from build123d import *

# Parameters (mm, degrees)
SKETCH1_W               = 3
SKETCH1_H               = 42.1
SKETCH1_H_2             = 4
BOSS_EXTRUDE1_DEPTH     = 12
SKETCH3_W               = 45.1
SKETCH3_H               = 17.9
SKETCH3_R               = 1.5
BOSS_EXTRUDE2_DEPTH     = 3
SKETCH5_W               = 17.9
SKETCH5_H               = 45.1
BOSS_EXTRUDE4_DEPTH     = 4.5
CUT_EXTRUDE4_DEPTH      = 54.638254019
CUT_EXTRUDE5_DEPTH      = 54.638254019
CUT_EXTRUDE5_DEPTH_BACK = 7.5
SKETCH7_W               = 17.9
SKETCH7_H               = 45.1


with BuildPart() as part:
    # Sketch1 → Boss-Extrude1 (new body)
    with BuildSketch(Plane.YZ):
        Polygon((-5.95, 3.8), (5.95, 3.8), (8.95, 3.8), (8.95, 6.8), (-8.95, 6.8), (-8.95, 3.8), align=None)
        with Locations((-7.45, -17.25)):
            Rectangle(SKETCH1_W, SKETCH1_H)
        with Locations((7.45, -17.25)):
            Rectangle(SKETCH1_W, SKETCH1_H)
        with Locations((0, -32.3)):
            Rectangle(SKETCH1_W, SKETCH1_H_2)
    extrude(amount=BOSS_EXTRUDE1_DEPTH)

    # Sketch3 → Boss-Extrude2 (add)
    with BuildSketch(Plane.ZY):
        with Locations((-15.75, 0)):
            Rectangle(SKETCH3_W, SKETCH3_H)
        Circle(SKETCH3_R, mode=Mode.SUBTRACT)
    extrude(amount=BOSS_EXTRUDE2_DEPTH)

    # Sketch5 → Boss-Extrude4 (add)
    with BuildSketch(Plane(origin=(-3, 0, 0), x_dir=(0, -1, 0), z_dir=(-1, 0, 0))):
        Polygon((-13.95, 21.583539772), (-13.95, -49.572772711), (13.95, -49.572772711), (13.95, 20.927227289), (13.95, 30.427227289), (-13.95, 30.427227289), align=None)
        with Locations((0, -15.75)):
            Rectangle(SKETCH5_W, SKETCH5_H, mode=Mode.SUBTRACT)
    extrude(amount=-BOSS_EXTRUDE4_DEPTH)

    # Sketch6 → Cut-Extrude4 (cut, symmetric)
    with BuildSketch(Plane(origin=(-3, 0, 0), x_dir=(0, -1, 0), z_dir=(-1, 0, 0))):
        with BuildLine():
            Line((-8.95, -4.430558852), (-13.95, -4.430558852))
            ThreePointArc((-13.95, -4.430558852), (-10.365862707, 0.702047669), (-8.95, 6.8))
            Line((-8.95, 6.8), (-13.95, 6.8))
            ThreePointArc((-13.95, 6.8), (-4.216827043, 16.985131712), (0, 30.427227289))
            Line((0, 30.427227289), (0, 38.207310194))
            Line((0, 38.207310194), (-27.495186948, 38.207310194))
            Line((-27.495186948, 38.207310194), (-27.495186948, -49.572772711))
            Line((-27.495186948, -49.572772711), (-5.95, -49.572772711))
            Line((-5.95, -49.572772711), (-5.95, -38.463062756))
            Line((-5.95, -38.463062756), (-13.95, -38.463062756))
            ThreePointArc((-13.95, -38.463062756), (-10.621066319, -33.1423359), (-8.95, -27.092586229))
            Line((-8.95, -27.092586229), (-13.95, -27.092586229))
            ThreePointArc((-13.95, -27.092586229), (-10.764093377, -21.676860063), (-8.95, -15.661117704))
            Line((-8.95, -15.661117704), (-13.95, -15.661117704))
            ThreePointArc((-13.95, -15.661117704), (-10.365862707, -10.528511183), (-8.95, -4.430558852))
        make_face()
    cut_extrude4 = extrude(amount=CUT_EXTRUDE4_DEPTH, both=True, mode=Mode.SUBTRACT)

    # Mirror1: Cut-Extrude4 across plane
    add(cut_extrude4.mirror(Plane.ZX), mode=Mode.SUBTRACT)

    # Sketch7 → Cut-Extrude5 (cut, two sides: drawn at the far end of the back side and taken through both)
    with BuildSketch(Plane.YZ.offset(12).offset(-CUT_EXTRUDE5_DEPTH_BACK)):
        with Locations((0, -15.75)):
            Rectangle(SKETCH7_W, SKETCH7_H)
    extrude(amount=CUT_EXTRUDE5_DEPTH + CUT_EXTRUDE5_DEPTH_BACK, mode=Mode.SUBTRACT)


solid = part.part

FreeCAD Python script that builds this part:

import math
import FreeCAD as App
import Part
import Sketcher

V = App.Vector

doc = App.newDocument("Part")
params = doc.addObject("Spreadsheet::Sheet", "Params")
for row, (alias, value) in enumerate([
    ("sketch1_width", "3 mm"),
    ("sketch1_height", "4 mm"),
    ("sketch1_width2", "17.9 mm"),
    ("sketch1_height2", "45.1 mm"),
    ("sketch1_height3", "42.1 mm"),
    ("pad1_length", "12 mm"),
    ("sketch2_diameter", "3 mm"),
    ("sketch2_width", "17.9 mm"),
    ("sketch2_height", "45.1 mm"),
    ("pad2_length", "3 mm"),
    ("sketch3_height", "80 mm"),
    ("sketch3_width", "27.9 mm"),
    ("sketch3_width2", "17.9 mm"),
    ("sketch3_height2", "45.1 mm"),
    ("pad3_length", "4.5 mm"),
    ("sketch4_width", "5 mm"),
    ("sketch4_width2", "8 mm"),
    ("pocket1_length", "109.276508 mm"),
    ("sketch5_width", "17.9 mm"),
    ("sketch5_height", "45.1 mm"),
    ("pocket2_length", "54.638254 mm"),
    ("pocket2_length2", "7.5 mm"),
], start=1):
    params.set(f"A{row}", alias)
    params.set(f"B{row}", "=" + value)
    params.setAlias(f"B{row}", alias)

body = doc.addObject("PartDesign::Body", "Body")
body.AllowCompound = True

# Sketch on YZ plane
sketch1 = body.newObject("Sketcher::SketchObject", "Sketch")
sketch1.AttachmentSupport = (doc.getObject("YZ_Plane"), [""])
sketch1.MapMode = "FlatFace"
sketch1.addGeometry(Part.LineSegment(V(8.9, 6.8, 0), V(-8.9, 6.8, 0)), False)
sketch1.addGeometry(Part.LineSegment(V(-8.9, 6.8, 0), V(-8.9, -38.3, 0)), False)
sketch1.addGeometry(Part.LineSegment(V(-8.9, -38.3, 0), V(-6, -38.3, 0)), False)
sketch1.addGeometry(Part.LineSegment(V(-6, -38.3, 0), V(-6, 3.8, 0)), False)
sketch1.addGeometry(Part.LineSegment(V(-6, 3.8, 0), V(6, 3.8, 0)), False)
sketch1.addGeometry(Part.LineSegment(V(6, 3.8, 0), V(6, -38.3, 0)), False)
sketch1.addGeometry(Part.LineSegment(V(6, -38.3, 0), V(8.9, -38.3, 0)), False)
sketch1.addGeometry(Part.LineSegment(V(8.9, -38.3, 0), V(8.9, 6.8, 0)), False)
sketch1.addGeometry(Part.LineSegment(V(-1.5, -30.3, 0), V(-1.5, -34.3, 0)), False)
sketch1.addGeometry(Part.LineSegment(V(-1.5, -34.3, 0), V(1.5, -34.3, 0)), False)
sketch1.addGeometry(Part.LineSegment(V(1.5, -34.3, 0), V(1.5, -30.3, 0)), False)
sketch1.addGeometry(Part.LineSegment(V(1.5, -30.3, 0), V(-1.5, -30.3, 0)), False)
sketch1.addConstraint(Sketcher.Constraint("Coincident", 0, 2, 1, 1))
sketch1.addConstraint(Sketcher.Constraint("Coincident", 1, 2, 2, 1))
sketch1.addConstraint(Sketcher.Constraint("Coincident", 2, 2, 3, 1))
sketch1.addConstraint(Sketcher.Constraint("Coincident", 3, 2, 4, 1))
sketch1.addConstraint(Sketcher.Constraint("Coincident", 4, 2, 5, 1))
sketch1.addConstraint(Sketcher.Constraint("Coincident", 5, 2, 6, 1))
sketch1.addConstraint(Sketcher.Constraint("Coincident", 6, 2, 7, 1))
sketch1.addConstraint(Sketcher.Constraint("Coincident", 7, 2, 0, 1))
sketch1.addConstraint(Sketcher.Constraint("Coincident", 8, 2, 9, 1))
sketch1.addConstraint(Sketcher.Constraint("Coincident", 9, 2, 10, 1))
sketch1.addConstraint(Sketcher.Constraint("Coincident", 10, 2, 11, 1))
sketch1.addConstraint(Sketcher.Constraint("Coincident", 11, 2, 8, 1))
sketch1.addConstraint(Sketcher.Constraint("Horizontal", 0))
sketch1.addConstraint(Sketcher.Constraint("Vertical", 1))
sketch1.addConstraint(Sketcher.Constraint("Horizontal", 2))
sketch1.addConstraint(Sketcher.Constraint("Vertical", 3))
sketch1.addConstraint(Sketcher.Constraint("Horizontal", 4))
sketch1.addConstraint(Sketcher.Constraint("Vertical", 5))
sketch1.addConstraint(Sketcher.Constraint("Horizontal", 6))
sketch1.addConstraint(Sketcher.Constraint("Vertical", 7))
sketch1.addConstraint(Sketcher.Constraint("Vertical", 8))
sketch1.addConstraint(Sketcher.Constraint("Horizontal", 9))
sketch1.addConstraint(Sketcher.Constraint("Vertical", 10))
sketch1.addConstraint(Sketcher.Constraint("Horizontal", 11))
sketch1.addConstraint(Sketcher.Constraint("Symmetric", 2, 2, 5, 2, -2))
sketch1.addConstraint(Sketcher.Constraint("Equal", 2, 6))
sketch1.addConstraint(Sketcher.Constraint("Equal", 6, 9))
sketch1.addConstraint(Sketcher.Constraint("DistanceX", 2, 1, 2, 2, 3.0))
sketch1.addConstraint(Sketcher.Constraint("DistanceY", 8, 2, 8, 1, 4.0))
sketch1.addConstraint(Sketcher.Constraint("DistanceX", 0, 2, 0, 1, 17.9))
sketch1.addConstraint(Sketcher.Constraint("DistanceY", 1, 2, 1, 1, 45.1))
sketch1.addConstraint(Sketcher.Constraint("DistanceY", 3, 1, 3, 2, 42.1))
sketch1.addConstraint(Sketcher.Constraint("DistanceY", 2, 2, 8, 2, 4.0))
sketch1.addConstraint(Sketcher.Constraint("DistanceY", -1, 1, 0, 2, 6.8))
sketch1.addConstraint(Sketcher.Constraint("DistanceX", 8, 2, -1, 1, 1.5))
sketch1.setExpression("Constraints[27]", "Params.sketch1_width")
sketch1.setExpression("Constraints[28]", "Params.sketch1_height")
sketch1.setExpression("Constraints[29]", "Params.sketch1_width2")
sketch1.setExpression("Constraints[30]", "Params.sketch1_height2")
sketch1.setExpression("Constraints[31]", "Params.sketch1_height3")
pad1 = body.newObject("PartDesign::Pad", "Pad")
pad1.Profile = sketch1
pad1.setExpression("Length", "Params.pad1_length")

# Sketch on YZ plane
sketch2 = body.newObject("Sketcher::SketchObject", "Sketch001")
sketch2.AttachmentSupport = (doc.getObject("YZ_Plane"), [""])
sketch2.MapMode = "FlatFace"
sketch2.addGeometry(Part.LineSegment(V(8.9, -38.3, 0), V(-8.9, -38.3, 0)), False)
sketch2.addGeometry(Part.LineSegment(V(-8.9, -38.3, 0), V(-8.9, 6.8, 0)), False)
sketch2.addGeometry(Part.LineSegment(V(-8.9, 6.8, 0), V(8.9, 6.8, 0)), False)
sketch2.addGeometry(Part.LineSegment(V(8.9, 6.8, 0), V(8.9, -38.3, 0)), False)
sketch2.addGeometry(Part.Circle(V(0, 0, 0), V(0, 0, 1), 1.5), False)
sketch2.addConstraint(Sketcher.Constraint("Coincident", 0, 2, 1, 1))
sketch2.addConstraint(Sketcher.Constraint("Coincident", 1, 2, 2, 1))
sketch2.addConstraint(Sketcher.Constraint("Coincident", 2, 2, 3, 1))
sketch2.addConstraint(Sketcher.Constraint("Coincident", 3, 2, 0, 1))
sketch2.addConstraint(Sketcher.Constraint("Horizontal", 0))
sketch2.addConstraint(Sketcher.Constraint("Vertical", 1))
sketch2.addConstraint(Sketcher.Constraint("Horizontal", 2))
sketch2.addConstraint(Sketcher.Constraint("Vertical", 3))
sketch2.addConstraint(Sketcher.Constraint("Coincident", 4, 3, -1, 1))
sketch2.addConstraint(Sketcher.Constraint("Diameter", 4, 3.0))
sketch2.addConstraint(Sketcher.Constraint("DistanceX", 0, 2, 0, 1, 17.9))
sketch2.addConstraint(Sketcher.Constraint("DistanceY", 1, 1, 1, 2, 45.1))
sketch2.addConstraint(Sketcher.Constraint("DistanceY", 0, 2, -1, 1, 38.3))
sketch2.addConstraint(Sketcher.Constraint("DistanceX", 0, 2, -1, 1, 8.95))
sketch2.setExpression("Constraints[9]", "Params.sketch2_diameter")
sketch2.setExpression("Constraints[10]", "Params.sketch2_width")
sketch2.setExpression("Constraints[11]", "Params.sketch2_height")
pad2 = body.newObject("PartDesign::Pad", "Pad001")
pad2.Profile = sketch2
pad2.setExpression("Length", "Params.pad2_length")
pad2.Reversed = True

# Sketch on YZ plane
sketch3 = body.newObject("Sketcher::SketchObject", "Sketch002")
sketch3.AttachmentSupport = (doc.getObject("YZ_Plane"), [""])
sketch3.MapMode = "FlatFace"
sketch3.AttachmentOffset = App.Placement(V(0, 0, -3), App.Rotation())
sketch3.addGeometry(Part.LineSegment(V(14, -50, 0), V(-14, -50, 0)), False)
sketch3.addGeometry(Part.LineSegment(V(-14, -50, 0), V(-14, 30, 0)), False)
sketch3.addGeometry(Part.LineSegment(V(-14, 30, 0), V(14, 30, 0)), False)
sketch3.addGeometry(Part.LineSegment(V(14, 30, 0), V(14, -50, 0)), False)
sketch3.addGeometry(Part.LineSegment(V(-9, -38, 0), V(9, -38, 0)), False)
sketch3.addGeometry(Part.LineSegment(V(9, -38, 0), V(9, 7, 0)), False)
sketch3.addGeometry(Part.LineSegment(V(9, 7, 0), V(-9, 7, 0)), False)
sketch3.addGeometry(Part.LineSegment(V(-9, 7, 0), V(-9, -38, 0)), False)
sketch3.addConstraint(Sketcher.Constraint("Coincident", 0, 2, 1, 1))
sketch3.addConstraint(Sketcher.Constraint("Coincident", 1, 2, 2, 1))
sketch3.addConstraint(Sketcher.Constraint("Coincident", 2, 2, 3, 1))
sketch3.addConstraint(Sketcher.Constraint("Coincident", 3, 2, 0, 1))
sketch3.addConstraint(Sketcher.Constraint("Coincident", 4, 2, 5, 1))
sketch3.addConstraint(Sketcher.Constraint("Coincident", 5, 2, 6, 1))
sketch3.addConstraint(Sketcher.Constraint("Coincident", 6, 2, 7, 1))
sketch3.addConstraint(Sketcher.Constraint("Coincident", 7, 2, 4, 1))
sketch3.addConstraint(Sketcher.Constraint("Horizontal", 0))
sketch3.addConstraint(Sketcher.Constraint("Vertical", 1))
sketch3.addConstraint(Sketcher.Constraint("Horizontal", 2))
sketch3.addConstraint(Sketcher.Constraint("Vertical", 3))
sketch3.addConstraint(Sketcher.Constraint("Horizontal", 4))
sketch3.addConstraint(Sketcher.Constraint("Vertical", 5))
sketch3.addConstraint(Sketcher.Constraint("Horizontal", 6))
sketch3.addConstraint(Sketcher.Constraint("Vertical", 7))
sketch3.addConstraint(Sketcher.Constraint("DistanceY", 1, 1, 1, 2, 80.0))
sketch3.addConstraint(Sketcher.Constraint("DistanceX", 0, 2, 0, 1, 27.9))
sketch3.addConstraint(Sketcher.Constraint("DistanceX", 4, 1, 4, 2, 17.9))
sketch3.addConstraint(Sketcher.Constraint("DistanceY", 5, 1, 5, 2, 45.1))
sketch3.addConstraint(Sketcher.Constraint("DistanceX", 4, 2, 3, 2, 5.0))
sketch3.addConstraint(Sketcher.Constraint("DistanceY", 4, 2, -1, 1, 38.3))
sketch3.addConstraint(Sketcher.Constraint("DistanceX", 0, 2, -1, 1, 13.95))
sketch3.addConstraint(Sketcher.Constraint("DistanceY", 0, 2, -1, 1, 49.572773))
sketch3.setExpression("Constraints[16]", "Params.sketch3_height")
sketch3.setExpression("Constraints[17]", "Params.sketch3_width")
sketch3.setExpression("Constraints[18]", "Params.sketch3_width2")
sketch3.setExpression("Constraints[19]", "Params.sketch3_height2")
pad3 = body.newObject("PartDesign::Pad", "Pad002")
pad3.Profile = sketch3
pad3.setExpression("Length", "Params.pad3_length")

# Sketch on YZ plane
sketch4 = body.newObject("Sketcher::SketchObject", "Sketch003")
sketch4.AttachmentSupport = (doc.getObject("YZ_Plane"), [""])
sketch4.MapMode = "FlatFace"
sketch4.AttachmentOffset = App.Placement(V(0, 0, -3), App.Rotation())
sketch4.addGeometry(Part.LineSegment(V(9, -4, 0), V(14, -4, 0)), False)
sketch4.addGeometry(Part.ArcOfCircle(Part.Circle(V(25, 7, 0), V(0, 0, 1), 17), math.radians(-178), math.radians(-134)), False)
sketch4.addGeometry(Part.LineSegment(V(9, 7, 0), V(14, 7, 0)), False)
sketch4.addGeometry(Part.ArcOfCircle(Part.Circle(V(31, 33, 0), V(0, 0, 1), 31), math.radians(-176), math.radians(-123)), False)
sketch4.addGeometry(Part.LineSegment(V(0, 30, 0), V(0, 38, 0)), False)
sketch4.addGeometry(Part.LineSegment(V(0, 38, 0), V(27, 38, 0)), False)
sketch4.addGeometry(Part.LineSegment(V(27, 38, 0), V(27, -50, 0)), False)
sketch4.addGeometry(Part.LineSegment(V(27, -50, 0), V(6, -50, 0)), False)
sketch4.addGeometry(Part.LineSegment(V(6, -50, 0), V(6, -38, 0)), False)
sketch4.addGeometry(Part.LineSegment(V(6, -38, 0), V(14, -38, 0)), False)
sketch4.addGeometry(Part.ArcOfCircle(Part.Circle(V(31, -24, 0), V(0, 0, 1), 22), math.radians(-173), math.radians(-140)), False)
sketch4.addGeometry(Part.LineSegment(V(9, -27, 0), V(14, -27, 0)), False)
sketch4.addGeometry(Part.ArcOfCircle(Part.Circle(V(35, -11, 0), V(0, 0, 1), 26), math.radians(-170), math.radians(-143)), False)
sketch4.addGeometry(Part.LineSegment(V(9, -16, 0), V(14, -16, 0)), False)
sketch4.addGeometry(Part.ArcOfCircle(Part.Circle(V(25, -4, 0), V(0, 0, 1), 17), math.radians(-178), math.radians(-134)), False)
sketch4.addConstraint(Sketcher.Constraint("Coincident", 0, 2, 1, 2))
sketch4.addConstraint(Sketcher.Constraint("Coincident", 1, 1, 2, 1))
sketch4.addConstraint(Sketcher.Constraint("Coincident", 2, 2, 3, 2))
sketch4.addConstraint(Sketcher.Constraint("Coincident", 3, 1, 4, 1))
sketch4.addConstraint(Sketcher.Constraint("Coincident", 4, 2, 5, 1))
sketch4.addConstraint(Sketcher.Constraint("Coincident", 5, 2, 6, 1))
sketch4.addConstraint(Sketcher.Constraint("Coincident", 6, 2, 7, 1))
sketch4.addConstraint(Sketcher.Constraint("Coincident", 7, 2, 8, 1))
sketch4.addConstraint(Sketcher.Constraint("Coincident", 8, 2, 9, 1))
sketch4.addConstraint(Sketcher.Constraint("Coincident", 9, 2, 10, 2))
sketch4.addConstraint(Sketcher.Constraint("Coincident", 10, 1, 11, 1))
sketch4.addConstraint(Sketcher.Constraint("Coincident", 11, 2, 12, 2))
sketch4.addConstraint(Sketcher.Constraint("Coincident", 12, 1, 13, 1))
sketch4.addConstraint(Sketcher.Constraint("Coincident", 13, 2, 14, 2))
sketch4.addConstraint(Sketcher.Constraint("Coincident", 14, 1, 0, 1))
sketch4.addConstraint(Sketcher.Constraint("Horizontal", 0))
sketch4.addConstraint(Sketcher.Constraint("Horizontal", 2))
sketch4.addConstraint(Sketcher.Constraint("Vertical", 4))
sketch4.addConstraint(Sketcher.Constraint("Horizontal", 5))
sketch4.addConstraint(Sketcher.Constraint("Vertical", 6))
sketch4.addConstraint(Sketcher.Constraint("Horizontal", 7))
sketch4.addConstraint(Sketcher.Constraint("Vertical", 8))
sketch4.addConstraint(Sketcher.Constraint("Horizontal", 9))
sketch4.addConstraint(Sketcher.Constraint("Horizontal", 11))
sketch4.addConstraint(Sketcher.Constraint("Horizontal", 13))
sketch4.addConstraint(Sketcher.Constraint("Equal", 1, 14))
sketch4.addConstraint(Sketcher.Constraint("PointOnObject", 3, 1, -2))
sketch4.addConstraint(Sketcher.Constraint("Vertical", 1, 3, 14, 3))
sketch4.addConstraint(Sketcher.Constraint("Vertical", 0, 2, 2, 2))
sketch4.addConstraint(Sketcher.Constraint("Vertical", 2, 2, 9, 2))
sketch4.addConstraint(Sketcher.Constraint("Vertical", 1, 1, 10, 1))
sketch4.addConstraint(Sketcher.Constraint("Vertical", 9, 2, 11, 2))
sketch4.addConstraint(Sketcher.Constraint("Vertical", 10, 1, 12, 1))
sketch4.addConstraint(Sketcher.Constraint("Vertical", 11, 2, 13, 2))
sketch4.addConstraint(Sketcher.Constraint("Vertical", 12, 1, 14, 1))
sketch4.addConstraint(Sketcher.Constraint("DistanceX", 0, 1, 0, 2, 5.0))
sketch4.addConstraint(Sketcher.Constraint("DistanceX", 9, 1, 9, 2, 8.0))
sketch4.addConstraint(Sketcher.Constraint("DistanceY", -1, 1, 1, 1, 6.8))
sketch4.addConstraint(Sketcher.Constraint("DistanceX", -1, 1, 0, 2, 13.95))
sketch4.addConstraint(Sketcher.Constraint("Radius", 3, 30.98174))
sketch4.addConstraint(Sketcher.Constraint("Radius", 10, 21.750562))
sketch4.addConstraint(Sketcher.Constraint("Radius", 1, 16.511636))
sketch4.addConstraint(Sketcher.Constraint("Radius", 12, 26.367618))
sketch4.addConstraint(Sketcher.Constraint("DistanceY", 8, 1, 8, 2, 11.10971))
sketch4.addConstraint(Sketcher.Constraint("DistanceY", 14, 3, 3, 3, 36.5496))
sketch4.addConstraint(Sketcher.Constraint("DistanceY", 10, 3, 0, 2, 19.956401))
sketch4.addConstraint(Sketcher.Constraint("DistanceX", 5, 1, 5, 2, 27.495187))
sketch4.addConstraint(Sketcher.Constraint("DistanceY", 4, 1, 4, 2, 7.780083))
sketch4.addConstraint(Sketcher.Constraint("DistanceY", 6, 2, 6, 1, 87.780083))
sketch4.addConstraint(Sketcher.Constraint("DistanceY", -1, 1, 3, 3, 32.736789))
sketch4.setExpression("Constraints[35]", "Params.sketch4_width")
sketch4.setExpression("Constraints[36]", "Params.sketch4_width2")
pocket1 = body.newObject("PartDesign::Pocket", "Pocket")
pocket1.Profile = sketch4
pocket1.setExpression("Length", "Params.pocket1_length")
pocket1.Midplane = True
doc.recompute()

mirrored = body.newObject("PartDesign::Mirrored", "Mirrored")
mirrored.Originals = [pocket1]
mirrored.MirrorPlane = (doc.getObject("XZ_Plane"), [""])
body.Tip = mirrored

# Sketch on YZ plane
sketch5 = body.newObject("Sketcher::SketchObject", "Sketch004")
sketch5.AttachmentSupport = (doc.getObject("YZ_Plane"), [""])
sketch5.MapMode = "FlatFace"
sketch5.AttachmentOffset = App.Placement(V(0, 0, 12), App.Rotation())
sketch5.addGeometry(Part.LineSegment(V(-9, 7, 0), V(-9, -38, 0)), False)
sketch5.addGeometry(Part.LineSegment(V(-9, -38, 0), V(9, -38, 0)), False)
sketch5.addGeometry(Part.LineSegment(V(9, -38, 0), V(9, 7, 0)), False)
sketch5.addGeometry(Part.LineSegment(V(9, 7, 0), V(-9, 7, 0)), False)
sketch5.addConstraint(Sketcher.Constraint("Coincident", 0, 2, 1, 1))
sketch5.addConstraint(Sketcher.Constraint("Coincident", 1, 2, 2, 1))
sketch5.addConstraint(Sketcher.Constraint("Coincident", 2, 2, 3, 1))
sketch5.addConstraint(Sketcher.Constraint("Coincident", 3, 2, 0, 1))
sketch5.addConstraint(Sketcher.Constraint("Vertical", 0))
sketch5.addConstraint(Sketcher.Constraint("Horizontal", 1))
sketch5.addConstraint(Sketcher.Constraint("Vertical", 2))
sketch5.addConstraint(Sketcher.Constraint("Horizontal", 3))
sketch5.addConstraint(Sketcher.Constraint("DistanceX", 1, 1, 1, 2, 17.9))
sketch5.addConstraint(Sketcher.Constraint("DistanceY", 0, 2, 0, 1, 45.1))
sketch5.addConstraint(Sketcher.Constraint("DistanceY", 0, 2, -1, 1, 38.3))
sketch5.addConstraint(Sketcher.Constraint("DistanceX", 0, 2, -1, 1, 8.95))
sketch5.setExpression("Constraints[8]", "Params.sketch5_width")
sketch5.setExpression("Constraints[9]", "Params.sketch5_height")
pocket2 = body.newObject("PartDesign::Pocket", "Pocket001")
pocket2.Profile = sketch5
pocket2.Type = "TwoLengths"
pocket2.setExpression("Length", "Params.pocket2_length")
pocket2.setExpression("Length2", "Params.pocket2_length2")
pocket2.Reversed = True

doc.recompute()
